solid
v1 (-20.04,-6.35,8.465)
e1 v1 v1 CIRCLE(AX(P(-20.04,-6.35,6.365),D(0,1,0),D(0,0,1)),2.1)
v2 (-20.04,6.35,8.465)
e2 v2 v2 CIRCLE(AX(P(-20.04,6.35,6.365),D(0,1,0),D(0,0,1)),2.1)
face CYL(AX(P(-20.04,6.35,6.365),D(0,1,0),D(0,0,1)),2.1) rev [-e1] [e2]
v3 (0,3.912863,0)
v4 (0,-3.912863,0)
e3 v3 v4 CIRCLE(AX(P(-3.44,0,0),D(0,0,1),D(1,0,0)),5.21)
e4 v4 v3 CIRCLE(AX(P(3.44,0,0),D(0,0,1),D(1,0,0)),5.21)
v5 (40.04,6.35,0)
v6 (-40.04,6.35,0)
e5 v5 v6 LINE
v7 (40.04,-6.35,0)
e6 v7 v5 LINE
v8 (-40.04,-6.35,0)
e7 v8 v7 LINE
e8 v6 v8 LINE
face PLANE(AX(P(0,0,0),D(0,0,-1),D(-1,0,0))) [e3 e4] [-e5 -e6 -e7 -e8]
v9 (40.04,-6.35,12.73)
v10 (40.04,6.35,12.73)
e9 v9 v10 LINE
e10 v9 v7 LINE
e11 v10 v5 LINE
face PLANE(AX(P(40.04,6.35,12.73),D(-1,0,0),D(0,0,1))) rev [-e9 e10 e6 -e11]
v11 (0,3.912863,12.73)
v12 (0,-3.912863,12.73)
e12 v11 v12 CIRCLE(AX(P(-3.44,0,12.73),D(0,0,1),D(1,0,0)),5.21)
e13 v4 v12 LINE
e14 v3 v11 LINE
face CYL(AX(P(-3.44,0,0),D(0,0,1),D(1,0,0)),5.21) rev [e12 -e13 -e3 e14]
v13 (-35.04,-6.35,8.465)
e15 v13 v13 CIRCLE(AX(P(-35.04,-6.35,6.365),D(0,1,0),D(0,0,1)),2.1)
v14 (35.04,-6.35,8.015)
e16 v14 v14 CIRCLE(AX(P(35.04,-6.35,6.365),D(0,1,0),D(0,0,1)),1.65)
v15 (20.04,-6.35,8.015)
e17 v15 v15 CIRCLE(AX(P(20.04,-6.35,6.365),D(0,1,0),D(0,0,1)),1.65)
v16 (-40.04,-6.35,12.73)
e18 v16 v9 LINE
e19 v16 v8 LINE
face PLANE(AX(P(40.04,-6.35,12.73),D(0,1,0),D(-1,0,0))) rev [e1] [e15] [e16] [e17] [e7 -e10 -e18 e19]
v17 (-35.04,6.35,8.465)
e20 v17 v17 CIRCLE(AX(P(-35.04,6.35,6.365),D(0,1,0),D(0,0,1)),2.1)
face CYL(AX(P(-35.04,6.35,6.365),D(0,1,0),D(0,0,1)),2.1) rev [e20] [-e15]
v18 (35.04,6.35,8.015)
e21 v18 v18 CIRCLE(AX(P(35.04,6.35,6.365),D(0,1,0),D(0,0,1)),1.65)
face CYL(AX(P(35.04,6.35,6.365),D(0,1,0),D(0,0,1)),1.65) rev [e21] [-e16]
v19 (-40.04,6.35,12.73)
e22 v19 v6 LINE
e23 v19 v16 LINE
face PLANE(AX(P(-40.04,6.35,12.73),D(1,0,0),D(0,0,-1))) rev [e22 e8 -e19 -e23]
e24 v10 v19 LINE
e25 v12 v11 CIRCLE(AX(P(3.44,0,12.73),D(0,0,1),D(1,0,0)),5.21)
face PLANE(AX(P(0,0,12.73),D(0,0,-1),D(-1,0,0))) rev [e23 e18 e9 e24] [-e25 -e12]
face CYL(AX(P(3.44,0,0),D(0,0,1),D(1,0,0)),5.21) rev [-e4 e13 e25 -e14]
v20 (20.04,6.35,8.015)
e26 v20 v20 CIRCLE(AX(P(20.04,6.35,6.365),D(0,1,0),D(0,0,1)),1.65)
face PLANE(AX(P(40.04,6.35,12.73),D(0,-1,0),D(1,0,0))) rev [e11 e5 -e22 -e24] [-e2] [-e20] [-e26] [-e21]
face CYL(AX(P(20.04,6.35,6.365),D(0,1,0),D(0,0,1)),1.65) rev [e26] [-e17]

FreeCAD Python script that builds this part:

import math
import FreeCAD as App
import Part
import Sketcher
Q = App.Units.Quantity

doc = App.newDocument("Part")
body = doc.addObject("PartDesign::Body", "Body")

sketch1 = body.newObject("Sketcher::SketchObject", "Sketch")
sketch1.AttachmentSupport = (doc.getObject("XY_Plane"), [""])
sketch1.MapMode = "FlatFace"
sketch1.addGeometry(Part.LineSegment(App.Vector(-40, 6, 0), App.Vector(-40, -6, 0)), False)
sketch1.addGeometry(Part.LineSegment(App.Vector(-40, -6, 0), App.Vector(40, -6, 0)), False)
sketch1.addGeometry(Part.LineSegment(App.Vector(40, -6, 0), App.Vector(40, 6, 0)), False)
sketch1.addGeometry(Part.LineSegment(App.Vector(40, 6, 0), App.Vector(-40, 6, 0)), False)
sketch1.addConstraint(Sketcher.Constraint("Coincident", 0, 2, 1, 1))
sketch1.addConstraint(Sketcher.Constraint("Coincident", 1, 2, 2, 1))
sketch1.addConstraint(Sketcher.Constraint("Coincident", 2, 2, 3, 1))
sketch1.addConstraint(Sketcher.Constraint("Coincident", 3, 2, 0, 1))
sketch1.addConstraint(Sketcher.Constraint("Vertical", 0))
sketch1.addConstraint(Sketcher.Constraint("Horizontal", 1))
sketch1.addConstraint(Sketcher.Constraint("Vertical", 2))
sketch1.addConstraint(Sketcher.Constraint("Horizontal", 3))
sketch1.addConstraint(Sketcher.Constraint("Symmetric", 0, 2, 2, 2, -1, 1))
sketch1.addConstraint(Sketcher.Constraint("DistanceY", 0, 2, 0, 1, Q("12.7 mm")))
sketch1.addConstraint(Sketcher.Constraint("DistanceX", 1, 1, 1, 2, Q("80.08 mm")))
pad1 = body.newObject("PartDesign::Pad", "Pad")
pad1.Profile = sketch1
pad1.Length = 12.73

sketch2 = body.newObject("Sketcher::SketchObject", "Sketch001")
sketch2.AttachmentSupport = (doc.getObject("XZ_Plane"), [""])
sketch2.MapMode = "FlatFace"
sketch2.AttachmentOffset = App.Placement(App.Vector(0, 0, -6.35), App.Rotation())
sketch2.addGeometry(Part.Circle(App.Vector(-35, 6.4, 0), App.Vector(0, 0, 1), 2.1), False)
sketch2.addGeometry(Part.Circle(App.Vector(-20, 6.4, 0), App.Vector(0, 0, 1), 2.1), False)
sketch2.addConstraint(Sketcher.Constraint("Equal", 0, 1))
sketch2.addConstraint(Sketcher.Constraint("Horizontal", 0, 3, 1, 3))
sketch2.addConstraint(Sketcher.Constraint("Diameter", 0, Q("4.2 mm")))
sketch2.addConstraint(Sketcher.Constraint("DistanceX", 0, 3, 1, 3, Q("15 mm")))
sketch2.addConstraint(Sketcher.Constraint("DistanceX", 0, 3, -1, 1, Q("35.04 mm")))
sketch2.addConstraint(Sketcher.Constraint("DistanceY", -1, 1, 0, 3, Q("6.365 mm")))
doc.recompute()
hole = body.newObject("PartDesign::Hole", "Hole")
hole.Profile = sketch2
hole.ThreadType = "None"
hole.Diameter = 4.2
hole.DepthType = "ThroughAll"
hole.Reversed = True

sketch3 = body.newObject("Sketcher::SketchObject", "Sketch002")
sketch3.AttachmentSupport = (doc.getObject("XZ_Plane"), [""])
sketch3.MapMode = "FlatFace"
sketch3.AttachmentOffset = App.Placement(App.Vector(0, 0, -6.35), App.Rotation())
sketch3.addGeometry(Part.Circle(App.Vector(20, 6.4, 0), App.Vector(0, 0, 1), 1.6), False)
sketch3.addGeometry(Part.Circle(App.Vector(35, 6.4, 0), App.Vector(0, 0, 1), 1.6), False)
sketch3.addConstraint(Sketcher.Constraint("Equal", 0, 1))
sketch3.addConstraint(Sketcher.Constraint("Horizontal", 0, 3, 1, 3))
sketch3.addConstraint(Sketcher.Constraint("Diameter", 0, Q("3.3 mm")))
sketch3.addConstraint(Sketcher.Constraint("DistanceX", 0, 3, 1, 3, Q("15 mm")))
sketch3.addConstraint(Sketcher.Constraint("DistanceX", -1, 1, 0, 3, Q("20.04 mm")))
sketch3.addConstraint(Sketcher.Constraint("DistanceY", -1, 1, 0, 3, Q("6.365 mm")))
doc.recompute()
hole2 = body.newObject("PartDesign::Hole", "Hole001")
hole2.Profile = sketch3
hole2.ThreadType = "None"
hole2.Diameter = 3.3
hole2.DepthType = "ThroughAll"
hole2.Reversed = True

sketch4 = body.newObject("Sketcher::SketchObject", "Sketch003")
sketch4.AttachmentSupport = (doc.getObject("XY_Plane"), [""])
sketch4.MapMode = "FlatFace"
sketch4.AttachmentOffset = App.Placement(App.Vector(0, 0, 12.73), App.Rotation())
sketch4.addGeometry(Part.ArcOfCircle(Part.Circle(App.Vector(-3, 0, 0), App.Vector(0, 0, 1), 5), math.radians(49), math.radians(311)), False)
sketch4.addGeometry(Part.ArcOfCircle(Part.Circle(App.Vector(3, 0, 0), App.Vector(0, 0, 1), 5), math.radians(-131), math.radians(131)), False)
sketch4.addConstraint(Sketcher.Constraint("Coincident", 0, 1, 1, 2))
sketch4.addConstraint(Sketcher.Constraint("Coincident", 1, 1, 0, 2))
sketch4.addConstraint(Sketcher.Constraint("Equal", 0, 1))
sketch4.addConstraint(Sketcher.Constraint("Symmetric", 0, 3, 1, 3, -1, 1))
sketch4.addConstraint(Sketcher.Constraint("PointOnObject", 0, 3, -1))
sketch4.addConstraint(Sketcher.Constraint("Radius", 0, Q("5.21 mm")))
sketch4.addConstraint(Sketcher.Constraint("DistanceX", 0, 3, -1, 1, Q("3.44 mm")))
pocket1 = body.newObject("PartDesign::Pocket", "Pocket")
pocket1.Profile = sketch4
pocket1.Length = 12.73

doc.recompute()
